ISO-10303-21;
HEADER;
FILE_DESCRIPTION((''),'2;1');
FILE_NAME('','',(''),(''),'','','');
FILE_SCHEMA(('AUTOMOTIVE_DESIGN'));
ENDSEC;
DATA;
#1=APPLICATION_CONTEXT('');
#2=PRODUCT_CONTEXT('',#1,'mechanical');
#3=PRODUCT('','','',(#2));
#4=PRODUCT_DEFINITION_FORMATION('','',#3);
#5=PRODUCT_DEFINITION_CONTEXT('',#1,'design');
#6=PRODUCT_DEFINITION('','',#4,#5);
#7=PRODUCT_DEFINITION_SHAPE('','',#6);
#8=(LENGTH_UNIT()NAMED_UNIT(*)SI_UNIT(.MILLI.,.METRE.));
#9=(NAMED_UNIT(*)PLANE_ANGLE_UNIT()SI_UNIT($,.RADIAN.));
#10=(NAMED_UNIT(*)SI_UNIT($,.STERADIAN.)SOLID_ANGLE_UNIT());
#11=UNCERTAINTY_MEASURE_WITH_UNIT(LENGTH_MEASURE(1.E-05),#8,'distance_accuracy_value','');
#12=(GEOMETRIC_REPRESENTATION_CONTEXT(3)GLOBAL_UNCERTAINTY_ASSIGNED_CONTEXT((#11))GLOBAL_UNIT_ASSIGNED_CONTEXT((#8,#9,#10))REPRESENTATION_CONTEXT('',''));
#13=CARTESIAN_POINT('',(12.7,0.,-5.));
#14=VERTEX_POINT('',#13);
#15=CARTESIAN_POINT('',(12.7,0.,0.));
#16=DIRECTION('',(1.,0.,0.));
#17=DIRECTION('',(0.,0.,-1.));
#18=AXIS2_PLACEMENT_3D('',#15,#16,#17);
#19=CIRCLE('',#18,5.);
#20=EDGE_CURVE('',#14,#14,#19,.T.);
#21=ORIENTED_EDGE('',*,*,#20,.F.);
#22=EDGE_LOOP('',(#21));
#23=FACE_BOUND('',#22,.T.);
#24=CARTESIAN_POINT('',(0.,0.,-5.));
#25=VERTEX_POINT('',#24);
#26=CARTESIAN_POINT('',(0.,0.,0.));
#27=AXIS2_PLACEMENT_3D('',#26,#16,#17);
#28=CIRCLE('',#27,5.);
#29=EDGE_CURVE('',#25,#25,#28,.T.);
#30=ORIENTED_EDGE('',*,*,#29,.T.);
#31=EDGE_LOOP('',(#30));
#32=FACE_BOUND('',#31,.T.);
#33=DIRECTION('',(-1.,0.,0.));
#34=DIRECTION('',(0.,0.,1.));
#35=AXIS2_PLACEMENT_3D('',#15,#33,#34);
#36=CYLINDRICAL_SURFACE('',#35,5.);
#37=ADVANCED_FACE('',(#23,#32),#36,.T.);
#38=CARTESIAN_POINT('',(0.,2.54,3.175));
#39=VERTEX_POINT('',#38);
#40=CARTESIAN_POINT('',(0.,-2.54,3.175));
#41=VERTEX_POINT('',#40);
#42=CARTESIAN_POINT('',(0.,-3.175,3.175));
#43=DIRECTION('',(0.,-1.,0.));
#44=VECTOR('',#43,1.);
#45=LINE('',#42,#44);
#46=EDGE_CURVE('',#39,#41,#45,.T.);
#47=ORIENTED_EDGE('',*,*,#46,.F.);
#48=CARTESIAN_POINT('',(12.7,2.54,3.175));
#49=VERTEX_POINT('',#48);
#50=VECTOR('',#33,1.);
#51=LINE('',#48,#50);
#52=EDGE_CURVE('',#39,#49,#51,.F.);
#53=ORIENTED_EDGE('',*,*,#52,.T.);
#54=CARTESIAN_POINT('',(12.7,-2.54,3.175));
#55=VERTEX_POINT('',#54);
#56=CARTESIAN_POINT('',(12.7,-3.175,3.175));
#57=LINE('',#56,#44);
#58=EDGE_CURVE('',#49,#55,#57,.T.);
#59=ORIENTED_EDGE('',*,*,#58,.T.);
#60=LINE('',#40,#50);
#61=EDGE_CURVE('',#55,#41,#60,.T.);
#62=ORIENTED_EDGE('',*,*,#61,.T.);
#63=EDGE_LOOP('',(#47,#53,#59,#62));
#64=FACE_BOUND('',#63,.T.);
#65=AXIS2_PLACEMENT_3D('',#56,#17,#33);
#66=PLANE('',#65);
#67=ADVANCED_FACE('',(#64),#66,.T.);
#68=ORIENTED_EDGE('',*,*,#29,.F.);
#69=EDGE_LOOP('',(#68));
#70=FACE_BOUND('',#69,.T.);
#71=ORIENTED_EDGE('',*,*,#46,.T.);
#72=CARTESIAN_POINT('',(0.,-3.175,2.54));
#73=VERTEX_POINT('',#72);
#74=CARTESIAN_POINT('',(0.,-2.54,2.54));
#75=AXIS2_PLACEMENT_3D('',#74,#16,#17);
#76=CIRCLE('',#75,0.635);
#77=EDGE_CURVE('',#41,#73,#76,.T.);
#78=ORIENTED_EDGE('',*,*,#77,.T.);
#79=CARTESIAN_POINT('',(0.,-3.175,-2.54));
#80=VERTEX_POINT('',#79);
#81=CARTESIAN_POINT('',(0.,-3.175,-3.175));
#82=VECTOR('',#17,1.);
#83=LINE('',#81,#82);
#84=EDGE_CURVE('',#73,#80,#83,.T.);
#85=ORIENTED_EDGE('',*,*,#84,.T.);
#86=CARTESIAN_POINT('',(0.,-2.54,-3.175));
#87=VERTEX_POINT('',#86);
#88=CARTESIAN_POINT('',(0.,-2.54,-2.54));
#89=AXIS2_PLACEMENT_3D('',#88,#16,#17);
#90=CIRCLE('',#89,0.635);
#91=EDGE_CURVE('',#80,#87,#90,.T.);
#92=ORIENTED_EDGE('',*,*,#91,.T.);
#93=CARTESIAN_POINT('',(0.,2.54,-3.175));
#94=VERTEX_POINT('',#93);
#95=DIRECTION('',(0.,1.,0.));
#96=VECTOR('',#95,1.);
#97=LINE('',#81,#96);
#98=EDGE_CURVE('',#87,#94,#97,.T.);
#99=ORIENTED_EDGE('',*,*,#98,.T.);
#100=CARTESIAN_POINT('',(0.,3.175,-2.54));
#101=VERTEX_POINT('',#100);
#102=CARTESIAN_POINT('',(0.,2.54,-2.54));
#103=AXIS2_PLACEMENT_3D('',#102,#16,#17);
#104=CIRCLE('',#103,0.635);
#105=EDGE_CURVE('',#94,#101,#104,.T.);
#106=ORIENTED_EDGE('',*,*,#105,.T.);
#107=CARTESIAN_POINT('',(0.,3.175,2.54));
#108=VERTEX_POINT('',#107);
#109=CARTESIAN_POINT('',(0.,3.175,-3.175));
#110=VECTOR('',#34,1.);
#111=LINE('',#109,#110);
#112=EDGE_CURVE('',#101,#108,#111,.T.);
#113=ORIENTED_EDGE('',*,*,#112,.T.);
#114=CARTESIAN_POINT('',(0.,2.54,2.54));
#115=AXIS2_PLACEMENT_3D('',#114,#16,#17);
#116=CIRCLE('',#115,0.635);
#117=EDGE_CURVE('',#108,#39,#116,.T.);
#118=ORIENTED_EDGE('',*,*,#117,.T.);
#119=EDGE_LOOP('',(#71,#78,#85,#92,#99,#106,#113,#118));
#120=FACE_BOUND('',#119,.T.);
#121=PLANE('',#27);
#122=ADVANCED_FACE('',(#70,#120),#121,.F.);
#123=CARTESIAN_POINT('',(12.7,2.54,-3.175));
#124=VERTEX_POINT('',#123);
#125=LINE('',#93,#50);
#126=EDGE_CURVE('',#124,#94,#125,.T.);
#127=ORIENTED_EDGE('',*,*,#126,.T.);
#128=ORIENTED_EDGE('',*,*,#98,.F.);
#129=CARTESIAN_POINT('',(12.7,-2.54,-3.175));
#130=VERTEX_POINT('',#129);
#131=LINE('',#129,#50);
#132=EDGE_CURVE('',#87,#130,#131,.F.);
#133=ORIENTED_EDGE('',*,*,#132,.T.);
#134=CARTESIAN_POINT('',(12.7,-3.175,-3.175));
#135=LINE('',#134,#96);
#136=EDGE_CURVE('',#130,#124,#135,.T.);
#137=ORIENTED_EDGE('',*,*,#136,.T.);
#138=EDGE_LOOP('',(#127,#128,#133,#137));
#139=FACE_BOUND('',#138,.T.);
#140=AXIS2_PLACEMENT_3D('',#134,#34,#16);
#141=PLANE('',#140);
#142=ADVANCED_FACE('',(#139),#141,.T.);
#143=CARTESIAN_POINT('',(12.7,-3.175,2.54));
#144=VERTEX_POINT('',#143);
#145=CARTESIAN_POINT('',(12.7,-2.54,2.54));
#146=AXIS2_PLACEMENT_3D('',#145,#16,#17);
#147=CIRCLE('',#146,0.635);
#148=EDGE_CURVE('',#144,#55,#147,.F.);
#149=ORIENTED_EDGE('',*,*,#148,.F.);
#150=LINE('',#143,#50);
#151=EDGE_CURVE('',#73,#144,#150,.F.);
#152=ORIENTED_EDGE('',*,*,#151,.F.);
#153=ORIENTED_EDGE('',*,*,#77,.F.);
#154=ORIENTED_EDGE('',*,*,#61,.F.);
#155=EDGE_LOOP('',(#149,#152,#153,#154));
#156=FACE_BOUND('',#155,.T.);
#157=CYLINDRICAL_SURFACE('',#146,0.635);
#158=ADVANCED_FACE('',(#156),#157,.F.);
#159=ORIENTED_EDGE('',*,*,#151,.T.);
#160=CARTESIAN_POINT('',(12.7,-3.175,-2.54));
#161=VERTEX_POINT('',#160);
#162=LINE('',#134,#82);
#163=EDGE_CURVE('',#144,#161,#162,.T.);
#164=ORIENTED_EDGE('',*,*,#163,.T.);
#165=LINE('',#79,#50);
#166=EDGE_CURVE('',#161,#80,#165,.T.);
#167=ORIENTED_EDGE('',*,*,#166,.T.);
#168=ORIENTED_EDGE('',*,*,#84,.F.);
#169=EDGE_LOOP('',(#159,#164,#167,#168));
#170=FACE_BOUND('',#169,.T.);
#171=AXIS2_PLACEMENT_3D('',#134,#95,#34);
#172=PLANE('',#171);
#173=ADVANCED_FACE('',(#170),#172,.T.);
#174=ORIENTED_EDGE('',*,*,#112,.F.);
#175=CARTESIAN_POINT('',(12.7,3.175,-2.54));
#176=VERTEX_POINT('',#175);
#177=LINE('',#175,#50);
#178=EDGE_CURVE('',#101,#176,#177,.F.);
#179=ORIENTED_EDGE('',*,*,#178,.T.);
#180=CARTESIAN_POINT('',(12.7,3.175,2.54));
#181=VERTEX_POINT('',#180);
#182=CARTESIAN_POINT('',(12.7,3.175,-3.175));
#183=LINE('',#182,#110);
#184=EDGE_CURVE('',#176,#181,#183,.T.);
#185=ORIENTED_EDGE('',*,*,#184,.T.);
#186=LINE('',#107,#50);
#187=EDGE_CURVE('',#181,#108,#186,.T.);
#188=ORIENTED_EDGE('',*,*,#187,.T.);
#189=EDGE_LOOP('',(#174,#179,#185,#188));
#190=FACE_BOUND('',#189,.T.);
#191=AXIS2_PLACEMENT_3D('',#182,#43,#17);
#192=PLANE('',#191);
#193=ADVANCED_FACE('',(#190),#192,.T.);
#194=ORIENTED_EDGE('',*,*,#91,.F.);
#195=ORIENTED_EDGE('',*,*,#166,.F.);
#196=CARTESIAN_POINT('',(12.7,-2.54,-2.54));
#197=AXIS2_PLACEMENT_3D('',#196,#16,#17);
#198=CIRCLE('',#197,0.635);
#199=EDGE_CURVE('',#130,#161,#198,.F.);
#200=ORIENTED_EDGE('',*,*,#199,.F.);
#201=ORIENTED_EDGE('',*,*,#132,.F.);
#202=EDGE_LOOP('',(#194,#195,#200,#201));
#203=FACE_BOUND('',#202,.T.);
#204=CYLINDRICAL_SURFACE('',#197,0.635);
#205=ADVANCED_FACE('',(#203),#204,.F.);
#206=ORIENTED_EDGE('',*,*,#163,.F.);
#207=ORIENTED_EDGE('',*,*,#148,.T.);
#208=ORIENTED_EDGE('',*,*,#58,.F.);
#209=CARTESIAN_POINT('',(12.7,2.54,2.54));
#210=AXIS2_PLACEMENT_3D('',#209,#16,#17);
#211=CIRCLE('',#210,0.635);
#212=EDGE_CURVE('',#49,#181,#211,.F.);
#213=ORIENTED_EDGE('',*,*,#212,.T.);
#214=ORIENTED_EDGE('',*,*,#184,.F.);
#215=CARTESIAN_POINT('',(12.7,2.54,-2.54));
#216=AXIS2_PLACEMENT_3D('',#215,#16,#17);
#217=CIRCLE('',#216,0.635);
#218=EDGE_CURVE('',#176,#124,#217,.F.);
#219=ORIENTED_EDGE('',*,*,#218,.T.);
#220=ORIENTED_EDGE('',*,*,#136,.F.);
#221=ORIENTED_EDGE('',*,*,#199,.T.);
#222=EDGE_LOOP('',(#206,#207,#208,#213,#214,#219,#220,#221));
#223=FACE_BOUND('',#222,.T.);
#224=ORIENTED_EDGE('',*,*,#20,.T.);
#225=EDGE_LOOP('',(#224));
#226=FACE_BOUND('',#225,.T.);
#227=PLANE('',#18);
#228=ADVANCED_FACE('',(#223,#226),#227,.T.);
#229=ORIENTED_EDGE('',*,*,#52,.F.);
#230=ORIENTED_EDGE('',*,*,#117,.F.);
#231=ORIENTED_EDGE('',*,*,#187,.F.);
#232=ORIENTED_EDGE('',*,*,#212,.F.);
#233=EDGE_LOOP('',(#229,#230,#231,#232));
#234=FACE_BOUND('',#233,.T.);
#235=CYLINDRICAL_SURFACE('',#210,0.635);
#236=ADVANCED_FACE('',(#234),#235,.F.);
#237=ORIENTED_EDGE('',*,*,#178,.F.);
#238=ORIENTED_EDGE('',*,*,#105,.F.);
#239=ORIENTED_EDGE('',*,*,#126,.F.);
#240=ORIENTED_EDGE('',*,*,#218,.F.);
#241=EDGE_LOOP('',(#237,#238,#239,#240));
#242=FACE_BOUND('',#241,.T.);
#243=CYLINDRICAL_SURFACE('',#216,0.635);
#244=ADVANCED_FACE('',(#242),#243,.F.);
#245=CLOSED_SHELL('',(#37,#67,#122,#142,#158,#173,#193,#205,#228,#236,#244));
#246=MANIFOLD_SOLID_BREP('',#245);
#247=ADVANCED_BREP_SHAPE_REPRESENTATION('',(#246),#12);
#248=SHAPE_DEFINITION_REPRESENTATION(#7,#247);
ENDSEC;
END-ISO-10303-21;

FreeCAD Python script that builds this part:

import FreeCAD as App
import Part
import Sketcher
Q = App.Units.Quantity


def edges_at(feature, points):
    """Names of the edges that pass closest to the given points."""
    edges = feature.Shape.Edges
    near = lambda p: min(range(len(edges)), key=lambda i: edges[i].distToShape(Part.Vertex(*p))[0])
    return sorted({f"Edge{near(p) + 1}" for p in points})

doc = App.newDocument("Part")
body = doc.addObject("PartDesign::Body", "Body")

# Sketch on YZ plane
sketch1 = body.newObject("Sketcher::SketchObject", "Sketch")
sketch1.AttachmentSupport = (doc.getObject("YZ_Plane"), [""])
sketch1.MapMode = "FlatFace"
sketch1.addGeometry(Part.Circle(App.Vector(0, 0, 0), App.Vector(0, 0, 1), 5), False)
sketch1.addGeometry(Part.LineSegment(App.Vector(-3, -3, 0), App.Vector(-3, 3, 0)), False)
sketch1.addGeometry(Part.LineSegment(App.Vector(-3, 3, 0), App.Vector(3, 3, 0)), False)
sketch1.addGeometry(Part.LineSegment(App.Vector(3, 3, 0), App.Vector(3, -3, 0)), False)
sketch1.addGeometry(Part.LineSegment(App.Vector(3, -3, 0), App.Vector(-3, -3, 0)), False)
sketch1.addConstraint(Sketcher.Constraint("Coincident", 1, 2, 2, 1))
sketch1.addConstraint(Sketcher.Constraint("Coincident", 2, 2, 3, 1))
sketch1.addConstraint(Sketcher.Constraint("Coincident", 3, 2, 4, 1))
sketch1.addConstraint(Sketcher.Constraint("Coincident", 4, 2, 1, 1))
sketch1.addConstraint(Sketcher.Constraint("Vertical", 1))
sketch1.addConstraint(Sketcher.Constraint("Horizontal", 2))
sketch1.addConstraint(Sketcher.Constraint("Vertical", 3))
sketch1.addConstraint(Sketcher.Constraint("Horizontal", 4))
sketch1.addConstraint(Sketcher.Constraint("Coincident", 0, 3, -1, 1))
sketch1.addConstraint(Sketcher.Constraint("Symmetric", 1, 2, 3, 2, -1, 1))
sketch1.addConstraint(Sketcher.Constraint("Equal", 4, 1))
sketch1.addConstraint(Sketcher.Constraint("DistanceX", 2, 1, 2, 2, Q("0.25 in")))
sketch1.addConstraint(Sketcher.Constraint("Diameter", 0, Q("10 mm")))
pad1 = body.newObject("PartDesign::Pad", "Pad")
pad1.Profile = sketch1
pad1.Length = Q("0.5 in")
doc.recompute()

fillet = body.newObject("PartDesign::Fillet", "Fillet")
fillet.Base = (pad1, edges_at(pad1, [
    (6.35, 3.175, 3.175),
    (6.35, -3.175, 3.175),
    (6.35, -3.175, -3.175),
    (6.35, 3.175, -3.175),
]))
fillet.Radius = Q("0.025 in")

doc.recompute()
